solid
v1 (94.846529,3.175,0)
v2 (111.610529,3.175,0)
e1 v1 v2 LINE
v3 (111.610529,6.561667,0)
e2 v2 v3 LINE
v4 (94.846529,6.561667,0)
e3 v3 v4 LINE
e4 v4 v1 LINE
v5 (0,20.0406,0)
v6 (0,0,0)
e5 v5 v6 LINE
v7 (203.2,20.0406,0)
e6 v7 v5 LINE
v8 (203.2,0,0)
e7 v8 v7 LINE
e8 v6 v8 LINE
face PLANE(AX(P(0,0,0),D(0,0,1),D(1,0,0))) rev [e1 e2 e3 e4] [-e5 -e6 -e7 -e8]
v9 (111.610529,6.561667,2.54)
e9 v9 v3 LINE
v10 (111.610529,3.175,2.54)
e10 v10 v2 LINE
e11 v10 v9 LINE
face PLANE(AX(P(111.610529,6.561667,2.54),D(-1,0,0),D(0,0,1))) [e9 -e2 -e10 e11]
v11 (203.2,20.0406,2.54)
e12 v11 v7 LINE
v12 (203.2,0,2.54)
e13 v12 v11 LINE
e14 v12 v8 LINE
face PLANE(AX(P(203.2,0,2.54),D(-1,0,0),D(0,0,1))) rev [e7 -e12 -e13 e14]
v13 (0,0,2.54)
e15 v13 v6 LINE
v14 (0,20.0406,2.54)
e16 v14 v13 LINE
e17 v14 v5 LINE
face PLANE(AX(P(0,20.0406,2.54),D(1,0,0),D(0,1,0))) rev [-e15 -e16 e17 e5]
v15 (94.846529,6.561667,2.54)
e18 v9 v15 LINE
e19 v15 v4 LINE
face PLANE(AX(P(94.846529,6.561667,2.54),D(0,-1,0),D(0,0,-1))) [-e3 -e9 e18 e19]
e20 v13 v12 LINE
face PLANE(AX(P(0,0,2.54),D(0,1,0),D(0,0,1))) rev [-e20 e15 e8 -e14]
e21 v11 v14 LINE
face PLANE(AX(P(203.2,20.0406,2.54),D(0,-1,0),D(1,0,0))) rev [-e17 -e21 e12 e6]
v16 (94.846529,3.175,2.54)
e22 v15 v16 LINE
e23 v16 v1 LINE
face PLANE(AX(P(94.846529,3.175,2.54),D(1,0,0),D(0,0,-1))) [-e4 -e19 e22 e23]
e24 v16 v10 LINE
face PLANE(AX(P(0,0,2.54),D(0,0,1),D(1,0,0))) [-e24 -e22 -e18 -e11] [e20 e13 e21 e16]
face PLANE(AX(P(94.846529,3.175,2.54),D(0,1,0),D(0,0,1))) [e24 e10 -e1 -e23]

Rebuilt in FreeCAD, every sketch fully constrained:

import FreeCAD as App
import Part
import Sketcher
Q = App.Units.Quantity

doc = App.newDocument("Part")
body = doc.addObject("PartDesign::Body", "Body")

# Sketch on XY plane
sketch1 = body.newObject("Sketcher::SketchObject", "Sketch")
sketch1.AttachmentSupport = (doc.getObject("XY_Plane"), [""])
sketch1.MapMode = "FlatFace"
sketch1.addGeometry(Part.LineSegment(App.Vector(0, 20, 0), App.Vector(0, 0, 0)), False)
sketch1.addGeometry(Part.LineSegment(App.Vector(0, 0, 0), App.Vector(203.2, 0, 0)), False)
sketch1.addGeometry(Part.LineSegment(App.Vector(203.2, 0, 0), App.Vector(203.2, 20, 0)), False)
sketch1.addGeometry(Part.LineSegment(App.Vector(203.2, 20, 0), App.Vector(0, 20, 0)), False)
sketch1.addGeometry(Part.LineSegment(App.Vector(111.6, 3.2, 0), App.Vector(94.8, 3.2, 0)), False)
sketch1.addGeometry(Part.LineSegment(App.Vector(94.8, 3.2, 0), App.Vector(94.8, 6.6, 0)), False)
sketch1.addGeometry(Part.LineSegment(App.Vector(94.8, 6.6, 0), App.Vector(111.6, 6.6, 0)), False)
sketch1.addGeometry(Part.LineSegment(App.Vector(111.6, 6.6, 0), App.Vector(111.6, 3.2, 0)), False)
sketch1.addConstraint(Sketcher.Constraint("Coincident", 0, 2, 1, 1))
sketch1.addConstraint(Sketcher.Constraint("Coincident", 1, 2, 2, 1))
sketch1.addConstraint(Sketcher.Constraint("Coincident", 2, 2, 3, 1))
sketch1.addConstraint(Sketcher.Constraint("Coincident", 3, 2, 0, 1))
sketch1.addConstraint(Sketcher.Constraint("Coincident", 4, 2, 5, 1))
sketch1.addConstraint(Sketcher.Constraint("Coincident", 5, 2, 6, 1))
sketch1.addConstraint(Sketcher.Constraint("Coincident", 6, 2, 7, 1))
sketch1.addConstraint(Sketcher.Constraint("Coincident", 7, 2, 4, 1))
sketch1.addConstraint(Sketcher.Constraint("Vertical", 0))
sketch1.addConstraint(Sketcher.Constraint("Horizontal", 1))
sketch1.addConstraint(Sketcher.Constraint("Vertical", 2))
sketch1.addConstraint(Sketcher.Constraint("Horizontal", 3))
sketch1.addConstraint(Sketcher.Constraint("Horizontal", 4))
sketch1.addConstraint(Sketcher.Constraint("Vertical", 5))
sketch1.addConstraint(Sketcher.Constraint("Horizontal", 6))
sketch1.addConstraint(Sketcher.Constraint("Vertical", 7))
sketch1.addConstraint(Sketcher.Constraint("Coincident", 0, 2, -1, 1))
sketch1.addConstraint(Sketcher.Constraint("DistanceX", 1, 1, 1, 2, Q("8 in")))
sketch1.addConstraint(Sketcher.Constraint("DistanceX", 4, 2, 4, 1, Q("0.66 in")))
sketch1.addConstraint(Sketcher.Constraint("DistanceY", 0, 2, 0, 1, Q("0.789 in")))
sketch1.addConstraint(Sketcher.Constraint("DistanceY", -1, 1, 4, 2, Q("0.125 in")))
sketch1.addConstraint(Sketcher.Constraint("DistanceY", 5, 1, 5, 2, Q("3.386667 mm")))
sketch1.addConstraint(Sketcher.Constraint("DistanceX", -1, 1, 4, 2, Q("94.846529 mm")))
pad1 = body.newObject("PartDesign::Pad", "Pad")
pad1.Profile = sketch1
pad1.Length = Q("0.1 in")

doc.recompute()
